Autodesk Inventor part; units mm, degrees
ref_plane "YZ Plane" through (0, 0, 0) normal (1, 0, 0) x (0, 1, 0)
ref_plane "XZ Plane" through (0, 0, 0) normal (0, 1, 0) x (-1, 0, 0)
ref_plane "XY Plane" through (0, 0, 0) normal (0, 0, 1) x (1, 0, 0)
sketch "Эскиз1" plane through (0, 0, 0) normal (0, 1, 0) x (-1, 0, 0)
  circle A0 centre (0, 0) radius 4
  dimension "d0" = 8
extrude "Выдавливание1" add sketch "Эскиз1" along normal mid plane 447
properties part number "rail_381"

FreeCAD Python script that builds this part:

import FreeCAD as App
import Part
import Sketcher

doc = App.newDocument("Part")
body = doc.addObject("PartDesign::Body", "Body")

sketch1 = body.newObject("Sketcher::SketchObject", "Sketch")
sketch1.AttachmentSupport = (doc.getObject("XZ_Plane"), [""])
sketch1.MapMode = "FlatFace"
sketch1.addGeometry(Part.Circle(App.Vector(0, 0, 0), App.Vector(0, 0, 1), 4), False)
sketch1.addConstraint([
    Sketcher.Constraint("Coincident", 0, 3, -1, 1),
    Sketcher.Constraint("Diameter", 0, 8.0),
])
pad1 = body.newObject("PartDesign::Pad", "Pad")
pad1.Profile = sketch1
pad1.Length = 447
pad1.Midplane = True

doc.recompute()
